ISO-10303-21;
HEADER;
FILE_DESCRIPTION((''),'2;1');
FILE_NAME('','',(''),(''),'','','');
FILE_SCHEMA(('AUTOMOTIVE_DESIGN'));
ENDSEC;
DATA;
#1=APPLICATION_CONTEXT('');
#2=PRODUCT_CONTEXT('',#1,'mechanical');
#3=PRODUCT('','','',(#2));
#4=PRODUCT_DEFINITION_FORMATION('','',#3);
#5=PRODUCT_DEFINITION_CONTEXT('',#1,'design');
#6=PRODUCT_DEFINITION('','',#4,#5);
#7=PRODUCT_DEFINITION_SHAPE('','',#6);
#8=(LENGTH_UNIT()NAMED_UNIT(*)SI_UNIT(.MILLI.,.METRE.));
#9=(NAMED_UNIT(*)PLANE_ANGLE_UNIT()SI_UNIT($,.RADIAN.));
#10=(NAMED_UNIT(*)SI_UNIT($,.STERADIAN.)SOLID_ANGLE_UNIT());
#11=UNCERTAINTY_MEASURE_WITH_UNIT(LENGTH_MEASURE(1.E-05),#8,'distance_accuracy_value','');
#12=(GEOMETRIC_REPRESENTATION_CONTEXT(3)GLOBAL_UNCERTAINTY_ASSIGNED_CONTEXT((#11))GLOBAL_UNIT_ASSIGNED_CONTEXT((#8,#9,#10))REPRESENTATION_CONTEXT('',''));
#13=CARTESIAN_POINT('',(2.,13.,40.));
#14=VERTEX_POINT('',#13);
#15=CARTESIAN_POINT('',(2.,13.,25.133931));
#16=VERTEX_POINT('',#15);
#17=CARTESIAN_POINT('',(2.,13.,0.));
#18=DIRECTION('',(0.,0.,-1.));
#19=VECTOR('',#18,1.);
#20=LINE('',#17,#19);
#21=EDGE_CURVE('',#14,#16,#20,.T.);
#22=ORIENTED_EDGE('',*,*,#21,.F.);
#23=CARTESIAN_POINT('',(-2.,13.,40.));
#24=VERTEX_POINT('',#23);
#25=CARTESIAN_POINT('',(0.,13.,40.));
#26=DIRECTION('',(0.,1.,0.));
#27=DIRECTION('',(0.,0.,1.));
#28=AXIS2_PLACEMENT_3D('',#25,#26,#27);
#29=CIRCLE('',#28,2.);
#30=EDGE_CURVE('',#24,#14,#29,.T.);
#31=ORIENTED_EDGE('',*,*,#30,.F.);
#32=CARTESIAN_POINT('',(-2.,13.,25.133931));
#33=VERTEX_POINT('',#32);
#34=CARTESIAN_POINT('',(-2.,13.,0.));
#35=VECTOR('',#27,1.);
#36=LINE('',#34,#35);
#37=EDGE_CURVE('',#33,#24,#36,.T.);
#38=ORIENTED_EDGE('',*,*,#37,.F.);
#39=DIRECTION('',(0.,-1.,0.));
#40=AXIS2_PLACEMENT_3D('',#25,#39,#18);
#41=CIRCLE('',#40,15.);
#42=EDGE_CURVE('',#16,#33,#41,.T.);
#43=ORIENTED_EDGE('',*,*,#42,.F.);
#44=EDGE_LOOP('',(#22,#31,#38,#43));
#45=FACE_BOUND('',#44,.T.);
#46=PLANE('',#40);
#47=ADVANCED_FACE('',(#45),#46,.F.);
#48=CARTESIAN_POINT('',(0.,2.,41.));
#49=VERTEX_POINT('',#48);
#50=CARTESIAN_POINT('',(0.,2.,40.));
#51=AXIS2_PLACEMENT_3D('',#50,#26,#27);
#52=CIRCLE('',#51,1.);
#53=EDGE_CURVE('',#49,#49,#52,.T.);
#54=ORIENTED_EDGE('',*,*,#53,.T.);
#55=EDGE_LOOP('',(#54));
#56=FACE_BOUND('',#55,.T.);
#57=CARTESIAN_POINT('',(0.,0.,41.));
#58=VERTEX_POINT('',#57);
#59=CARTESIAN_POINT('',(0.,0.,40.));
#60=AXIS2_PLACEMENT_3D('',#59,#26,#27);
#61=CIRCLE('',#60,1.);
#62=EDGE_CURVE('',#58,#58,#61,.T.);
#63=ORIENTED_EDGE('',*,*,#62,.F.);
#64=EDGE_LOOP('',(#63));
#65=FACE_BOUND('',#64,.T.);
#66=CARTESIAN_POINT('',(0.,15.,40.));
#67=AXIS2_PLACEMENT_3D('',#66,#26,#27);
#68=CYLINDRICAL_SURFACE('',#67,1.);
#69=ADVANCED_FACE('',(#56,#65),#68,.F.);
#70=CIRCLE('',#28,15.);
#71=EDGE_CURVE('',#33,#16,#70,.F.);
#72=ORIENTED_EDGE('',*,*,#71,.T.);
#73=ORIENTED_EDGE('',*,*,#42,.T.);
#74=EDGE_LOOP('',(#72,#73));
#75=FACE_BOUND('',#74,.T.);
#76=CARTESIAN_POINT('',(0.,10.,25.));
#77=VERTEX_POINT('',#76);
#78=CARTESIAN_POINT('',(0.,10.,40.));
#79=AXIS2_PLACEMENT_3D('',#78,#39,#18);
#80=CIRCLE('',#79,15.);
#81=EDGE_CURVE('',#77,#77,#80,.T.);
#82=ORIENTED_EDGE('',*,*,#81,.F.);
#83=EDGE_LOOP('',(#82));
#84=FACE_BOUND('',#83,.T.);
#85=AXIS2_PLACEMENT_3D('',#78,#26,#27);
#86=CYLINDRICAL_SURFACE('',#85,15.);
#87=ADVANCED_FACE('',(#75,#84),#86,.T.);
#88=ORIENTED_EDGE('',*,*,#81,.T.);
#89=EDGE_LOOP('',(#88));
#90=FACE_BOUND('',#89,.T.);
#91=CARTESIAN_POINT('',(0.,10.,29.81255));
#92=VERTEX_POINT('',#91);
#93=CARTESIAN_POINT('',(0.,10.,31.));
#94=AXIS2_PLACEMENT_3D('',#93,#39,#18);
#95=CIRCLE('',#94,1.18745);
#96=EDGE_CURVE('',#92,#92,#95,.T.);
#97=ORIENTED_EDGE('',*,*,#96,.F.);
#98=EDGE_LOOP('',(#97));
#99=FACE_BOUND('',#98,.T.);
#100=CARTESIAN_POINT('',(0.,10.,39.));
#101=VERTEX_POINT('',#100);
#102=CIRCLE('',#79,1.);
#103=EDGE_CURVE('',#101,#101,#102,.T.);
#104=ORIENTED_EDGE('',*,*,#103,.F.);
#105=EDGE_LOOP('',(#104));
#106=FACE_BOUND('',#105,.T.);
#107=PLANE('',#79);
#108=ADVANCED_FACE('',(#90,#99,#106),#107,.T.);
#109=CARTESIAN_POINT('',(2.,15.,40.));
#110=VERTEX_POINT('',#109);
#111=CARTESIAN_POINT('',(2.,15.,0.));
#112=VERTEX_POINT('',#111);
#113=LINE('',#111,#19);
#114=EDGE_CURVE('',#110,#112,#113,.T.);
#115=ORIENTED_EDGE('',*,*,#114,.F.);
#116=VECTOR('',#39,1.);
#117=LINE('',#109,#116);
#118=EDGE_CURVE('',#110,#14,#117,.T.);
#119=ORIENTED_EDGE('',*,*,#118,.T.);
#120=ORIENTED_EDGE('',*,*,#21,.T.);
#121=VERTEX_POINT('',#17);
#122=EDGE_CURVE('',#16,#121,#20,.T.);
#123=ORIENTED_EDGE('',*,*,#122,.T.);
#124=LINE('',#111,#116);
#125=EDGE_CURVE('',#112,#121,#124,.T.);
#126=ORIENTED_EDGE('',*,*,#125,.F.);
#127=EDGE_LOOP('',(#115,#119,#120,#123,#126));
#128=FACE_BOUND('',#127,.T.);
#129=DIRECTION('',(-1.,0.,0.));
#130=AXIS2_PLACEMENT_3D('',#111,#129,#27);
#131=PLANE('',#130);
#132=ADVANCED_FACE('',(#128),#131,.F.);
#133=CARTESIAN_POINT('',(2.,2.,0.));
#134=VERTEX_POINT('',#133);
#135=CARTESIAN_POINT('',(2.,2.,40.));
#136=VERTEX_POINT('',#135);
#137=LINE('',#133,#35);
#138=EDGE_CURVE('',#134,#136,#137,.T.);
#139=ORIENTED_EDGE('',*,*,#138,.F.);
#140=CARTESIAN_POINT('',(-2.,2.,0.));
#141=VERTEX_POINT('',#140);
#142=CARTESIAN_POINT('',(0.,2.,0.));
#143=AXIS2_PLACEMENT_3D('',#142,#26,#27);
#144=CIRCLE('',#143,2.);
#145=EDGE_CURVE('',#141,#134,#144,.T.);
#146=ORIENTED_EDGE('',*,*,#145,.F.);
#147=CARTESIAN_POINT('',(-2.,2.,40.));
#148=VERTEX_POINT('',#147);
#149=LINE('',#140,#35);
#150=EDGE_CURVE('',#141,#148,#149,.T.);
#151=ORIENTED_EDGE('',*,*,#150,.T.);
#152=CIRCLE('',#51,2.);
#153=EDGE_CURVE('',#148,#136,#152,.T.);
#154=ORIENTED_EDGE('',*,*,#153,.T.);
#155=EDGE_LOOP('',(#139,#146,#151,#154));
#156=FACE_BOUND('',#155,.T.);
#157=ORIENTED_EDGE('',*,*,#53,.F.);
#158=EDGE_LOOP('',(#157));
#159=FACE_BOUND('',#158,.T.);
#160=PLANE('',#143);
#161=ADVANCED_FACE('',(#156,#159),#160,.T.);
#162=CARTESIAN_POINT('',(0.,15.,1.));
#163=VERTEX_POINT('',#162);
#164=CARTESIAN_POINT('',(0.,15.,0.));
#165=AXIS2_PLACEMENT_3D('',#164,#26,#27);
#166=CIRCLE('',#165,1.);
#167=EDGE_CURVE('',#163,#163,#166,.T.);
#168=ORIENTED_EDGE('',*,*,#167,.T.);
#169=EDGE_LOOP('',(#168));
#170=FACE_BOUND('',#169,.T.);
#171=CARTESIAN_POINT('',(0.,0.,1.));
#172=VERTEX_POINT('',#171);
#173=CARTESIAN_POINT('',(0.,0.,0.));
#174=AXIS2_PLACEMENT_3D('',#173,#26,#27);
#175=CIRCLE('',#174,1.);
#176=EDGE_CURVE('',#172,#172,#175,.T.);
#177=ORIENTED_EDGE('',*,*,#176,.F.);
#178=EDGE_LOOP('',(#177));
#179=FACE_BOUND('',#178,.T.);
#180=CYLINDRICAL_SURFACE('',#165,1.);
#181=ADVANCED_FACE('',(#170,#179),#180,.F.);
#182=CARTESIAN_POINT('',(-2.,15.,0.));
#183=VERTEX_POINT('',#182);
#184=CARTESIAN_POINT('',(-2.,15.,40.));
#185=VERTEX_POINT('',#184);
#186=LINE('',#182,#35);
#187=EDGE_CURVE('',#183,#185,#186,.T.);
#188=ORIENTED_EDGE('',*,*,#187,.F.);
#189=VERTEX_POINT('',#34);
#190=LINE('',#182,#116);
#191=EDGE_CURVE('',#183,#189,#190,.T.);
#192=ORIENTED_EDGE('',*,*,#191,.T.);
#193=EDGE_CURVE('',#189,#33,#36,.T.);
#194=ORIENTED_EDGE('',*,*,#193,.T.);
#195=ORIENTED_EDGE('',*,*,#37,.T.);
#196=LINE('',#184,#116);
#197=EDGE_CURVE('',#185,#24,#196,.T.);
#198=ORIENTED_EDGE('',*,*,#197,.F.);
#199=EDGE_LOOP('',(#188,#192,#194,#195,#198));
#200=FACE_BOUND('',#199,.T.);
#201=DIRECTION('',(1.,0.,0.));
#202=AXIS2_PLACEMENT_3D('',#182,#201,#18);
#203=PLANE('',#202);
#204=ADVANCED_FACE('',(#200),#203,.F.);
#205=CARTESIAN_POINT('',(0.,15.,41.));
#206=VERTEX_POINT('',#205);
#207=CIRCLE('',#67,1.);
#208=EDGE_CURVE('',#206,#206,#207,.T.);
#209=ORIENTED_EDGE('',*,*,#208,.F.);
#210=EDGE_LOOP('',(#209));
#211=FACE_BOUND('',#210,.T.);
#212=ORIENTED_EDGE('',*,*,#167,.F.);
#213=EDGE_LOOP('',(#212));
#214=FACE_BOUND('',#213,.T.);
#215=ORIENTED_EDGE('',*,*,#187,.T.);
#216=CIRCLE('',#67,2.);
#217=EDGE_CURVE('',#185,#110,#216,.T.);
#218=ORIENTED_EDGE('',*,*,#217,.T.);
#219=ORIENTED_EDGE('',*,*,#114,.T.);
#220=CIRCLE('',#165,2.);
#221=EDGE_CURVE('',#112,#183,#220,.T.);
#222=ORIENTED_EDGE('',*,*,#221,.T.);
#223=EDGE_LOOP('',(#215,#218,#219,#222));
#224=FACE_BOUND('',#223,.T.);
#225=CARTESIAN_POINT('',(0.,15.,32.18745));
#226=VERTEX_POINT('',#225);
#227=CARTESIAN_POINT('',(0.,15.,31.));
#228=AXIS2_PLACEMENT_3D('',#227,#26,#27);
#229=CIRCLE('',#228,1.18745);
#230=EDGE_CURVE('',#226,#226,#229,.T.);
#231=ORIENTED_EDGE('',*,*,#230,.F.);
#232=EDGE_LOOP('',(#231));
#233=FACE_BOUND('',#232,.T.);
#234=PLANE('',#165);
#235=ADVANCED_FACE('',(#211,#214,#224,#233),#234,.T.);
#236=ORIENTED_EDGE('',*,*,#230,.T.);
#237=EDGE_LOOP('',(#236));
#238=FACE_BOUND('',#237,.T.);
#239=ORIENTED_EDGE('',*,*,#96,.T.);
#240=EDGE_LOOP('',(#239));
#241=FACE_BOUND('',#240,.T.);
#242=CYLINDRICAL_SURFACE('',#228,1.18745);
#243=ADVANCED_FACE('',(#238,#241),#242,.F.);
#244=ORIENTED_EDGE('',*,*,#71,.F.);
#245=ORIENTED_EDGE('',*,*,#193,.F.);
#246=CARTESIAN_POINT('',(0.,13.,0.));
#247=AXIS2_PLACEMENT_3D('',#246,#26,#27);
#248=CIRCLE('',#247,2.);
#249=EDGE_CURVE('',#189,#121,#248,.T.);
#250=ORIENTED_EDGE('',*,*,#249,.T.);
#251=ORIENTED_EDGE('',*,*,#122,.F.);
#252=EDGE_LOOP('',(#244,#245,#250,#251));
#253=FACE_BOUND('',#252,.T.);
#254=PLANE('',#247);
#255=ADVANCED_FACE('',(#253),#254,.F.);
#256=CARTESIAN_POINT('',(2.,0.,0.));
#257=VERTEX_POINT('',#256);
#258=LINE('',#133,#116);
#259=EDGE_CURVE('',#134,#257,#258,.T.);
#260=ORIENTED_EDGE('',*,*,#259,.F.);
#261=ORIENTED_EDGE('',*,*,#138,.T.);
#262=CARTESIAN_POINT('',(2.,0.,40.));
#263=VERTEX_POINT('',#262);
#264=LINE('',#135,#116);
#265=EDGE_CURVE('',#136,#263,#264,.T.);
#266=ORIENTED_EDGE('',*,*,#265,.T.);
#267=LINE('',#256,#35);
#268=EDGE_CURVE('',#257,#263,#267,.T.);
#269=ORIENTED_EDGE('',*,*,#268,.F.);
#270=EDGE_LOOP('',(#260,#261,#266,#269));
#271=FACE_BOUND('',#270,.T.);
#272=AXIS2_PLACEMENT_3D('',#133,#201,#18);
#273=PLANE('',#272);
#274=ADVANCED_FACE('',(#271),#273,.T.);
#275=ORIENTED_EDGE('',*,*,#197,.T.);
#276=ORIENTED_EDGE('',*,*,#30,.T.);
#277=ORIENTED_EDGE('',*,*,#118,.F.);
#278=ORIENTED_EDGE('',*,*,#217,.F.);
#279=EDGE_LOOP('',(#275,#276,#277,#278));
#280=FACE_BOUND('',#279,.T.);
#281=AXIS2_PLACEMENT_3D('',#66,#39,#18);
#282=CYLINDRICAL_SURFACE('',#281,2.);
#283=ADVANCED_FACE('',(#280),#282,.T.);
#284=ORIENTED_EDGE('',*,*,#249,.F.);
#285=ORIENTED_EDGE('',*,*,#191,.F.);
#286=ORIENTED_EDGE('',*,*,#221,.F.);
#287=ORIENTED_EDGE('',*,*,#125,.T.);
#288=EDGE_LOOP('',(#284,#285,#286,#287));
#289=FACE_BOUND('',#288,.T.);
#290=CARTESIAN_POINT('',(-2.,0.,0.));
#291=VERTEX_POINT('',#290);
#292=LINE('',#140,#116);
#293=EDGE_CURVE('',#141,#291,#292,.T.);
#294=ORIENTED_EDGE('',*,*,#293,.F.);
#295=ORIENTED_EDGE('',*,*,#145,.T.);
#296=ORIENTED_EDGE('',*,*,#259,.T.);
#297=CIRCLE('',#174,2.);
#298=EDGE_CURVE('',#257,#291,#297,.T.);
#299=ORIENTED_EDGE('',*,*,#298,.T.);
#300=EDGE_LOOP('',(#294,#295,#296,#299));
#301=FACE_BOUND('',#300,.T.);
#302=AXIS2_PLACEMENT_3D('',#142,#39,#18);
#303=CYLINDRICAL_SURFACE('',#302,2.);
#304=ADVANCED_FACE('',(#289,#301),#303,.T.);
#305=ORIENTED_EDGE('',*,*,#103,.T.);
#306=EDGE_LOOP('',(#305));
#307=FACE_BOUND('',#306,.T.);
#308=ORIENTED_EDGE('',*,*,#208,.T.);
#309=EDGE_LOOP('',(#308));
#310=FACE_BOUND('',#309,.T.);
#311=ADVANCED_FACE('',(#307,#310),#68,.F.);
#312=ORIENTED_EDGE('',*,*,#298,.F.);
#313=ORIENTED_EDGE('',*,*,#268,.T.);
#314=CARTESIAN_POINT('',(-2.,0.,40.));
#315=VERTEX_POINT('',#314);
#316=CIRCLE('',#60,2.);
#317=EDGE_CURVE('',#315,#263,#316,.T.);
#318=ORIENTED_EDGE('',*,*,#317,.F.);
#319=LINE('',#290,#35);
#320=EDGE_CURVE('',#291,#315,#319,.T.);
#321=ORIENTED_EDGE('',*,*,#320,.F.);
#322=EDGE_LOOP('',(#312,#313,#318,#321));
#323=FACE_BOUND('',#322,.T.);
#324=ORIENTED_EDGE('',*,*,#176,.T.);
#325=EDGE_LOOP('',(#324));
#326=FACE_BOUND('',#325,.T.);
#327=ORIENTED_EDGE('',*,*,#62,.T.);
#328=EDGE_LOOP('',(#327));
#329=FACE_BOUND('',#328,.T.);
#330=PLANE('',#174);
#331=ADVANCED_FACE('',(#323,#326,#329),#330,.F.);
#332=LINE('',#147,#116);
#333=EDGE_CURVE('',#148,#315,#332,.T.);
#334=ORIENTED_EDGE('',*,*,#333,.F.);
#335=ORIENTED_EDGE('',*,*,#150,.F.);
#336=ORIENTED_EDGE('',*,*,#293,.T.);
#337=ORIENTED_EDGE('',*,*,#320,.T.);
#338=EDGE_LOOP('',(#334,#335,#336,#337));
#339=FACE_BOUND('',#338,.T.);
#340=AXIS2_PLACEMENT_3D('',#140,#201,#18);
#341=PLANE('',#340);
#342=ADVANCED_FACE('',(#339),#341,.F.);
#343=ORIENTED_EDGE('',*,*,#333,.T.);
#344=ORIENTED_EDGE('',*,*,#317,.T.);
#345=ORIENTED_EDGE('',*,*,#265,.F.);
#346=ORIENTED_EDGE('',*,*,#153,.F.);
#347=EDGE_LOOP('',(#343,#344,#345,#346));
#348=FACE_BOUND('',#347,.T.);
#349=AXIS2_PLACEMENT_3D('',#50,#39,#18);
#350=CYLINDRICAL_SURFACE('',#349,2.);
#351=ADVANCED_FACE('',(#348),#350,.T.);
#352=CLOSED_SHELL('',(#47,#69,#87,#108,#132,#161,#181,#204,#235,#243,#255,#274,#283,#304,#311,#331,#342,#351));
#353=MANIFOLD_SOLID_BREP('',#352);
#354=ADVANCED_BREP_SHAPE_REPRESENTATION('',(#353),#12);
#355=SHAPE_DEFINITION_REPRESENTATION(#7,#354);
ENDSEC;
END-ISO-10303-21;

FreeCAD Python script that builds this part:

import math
import FreeCAD as App
import Part
import Sketcher
Q = App.Units.Quantity

doc = App.newDocument("Part")
body = doc.addObject("PartDesign::Body", "Body")

sketch1 = body.newObject("Sketcher::SketchObject", "Sketch")
sketch1.AttachmentSupport = (doc.getObject("XZ_Plane"), [""])
sketch1.MapMode = "FlatFace"
sketch1.addGeometry([
    Part.LineSegment(App.Vector(2, 40, 0), App.Vector(2, 0, 0)),
    Part.ArcOfCircle(Part.Circle(App.Vector(0, 0, 0), App.Vector(0, 0, 1), 2), math.radians(180), math.radians(360)),
    Part.LineSegment(App.Vector(-2, 0, 0), App.Vector(-2, 40, 0)),
    Part.ArcOfCircle(Part.Circle(App.Vector(0, 40, 0), App.Vector(0, 0, 1), 2), math.radians(0), math.radians(180)),
], False)
sketch1.addConstraint([
    Sketcher.Constraint("Tangent", 0, 2, 1, 2),
    Sketcher.Constraint("Tangent", 1, 1, 2, 1),
    Sketcher.Constraint("Tangent", 2, 2, 3, 2),
    Sketcher.Constraint("Tangent", 3, 1, 0, 1),
    Sketcher.Constraint("Vertical", 0),
    Sketcher.Constraint("Vertical", 2),
    Sketcher.Constraint("Coincident", 1, 3, -1, 1),
    Sketcher.Constraint("Radius", 1, Q("2 mm")),
    Sketcher.Constraint("DistanceY", 0, 2, 0, 1, Q("40 mm")),
])
pad1 = body.newObject("PartDesign::Pad", "Pad")
pad1.Profile = sketch1
pad1.Length = 2
pad1.Reversed = True

sketch2 = body.newObject("Sketcher::SketchObject", "Sketch001")
sketch2.AttachmentSupport = (doc.getObject("XZ_Plane"), [""])
sketch2.MapMode = "FlatFace"
sketch2.AttachmentOffset = App.Placement(App.Vector(0, 0, -2), App.Rotation())
sketch2.addGeometry(Part.Circle(App.Vector(0, 0, 0), App.Vector(0, 0, 1), 2), False)
sketch2.addConstraint([
    Sketcher.Constraint("Coincident", 0, 3, -1, 1),
    Sketcher.Constraint("Diameter", 0, Q("4 mm")),
])
pad2 = body.newObject("PartDesign::Pad", "Pad001")
pad2.Profile = sketch2
pad2.Length = 12
pad2.Reversed = True

sketch3 = body.newObject("Sketcher::SketchObject", "Sketch002")
sketch3.AttachmentSupport = (doc.getObject("XZ_Plane"), [""])
sketch3.MapMode = "FlatFace"
sketch3.AttachmentOffset = App.Placement(App.Vector(0, 0, -13), App.Rotation())
sketch3.addGeometry([
    Part.LineSegment(App.Vector(2, 40, 0), App.Vector(2, 0, 0)),
    Part.ArcOfCircle(Part.Circle(App.Vector(0, 0, 0), App.Vector(0, 0, 1), 2), math.radians(180), math.radians(360)),
    Part.LineSegment(App.Vector(-2, 0, 0), App.Vector(-2, 40, 0)),
    Part.ArcOfCircle(Part.Circle(App.Vector(0, 40, 0), App.Vector(0, 0, 1), 2), math.radians(0), math.radians(180)),
], False)
sketch3.addConstraint([
    Sketcher.Constraint("Tangent", 0, 2, 1, 2),
    Sketcher.Constraint("Tangent", 1, 1, 2, 1),
    Sketcher.Constraint("Tangent", 2, 2, 3, 2),
    Sketcher.Constraint("Tangent", 3, 1, 0, 1),
    Sketcher.Constraint("Vertical", 0),
    Sketcher.Constraint("Vertical", 2),
    Sketcher.Constraint("Coincident", 1, 3, -1, 1),
    Sketcher.Constraint("Radius", 1, Q("2 mm")),
    Sketcher.Constraint("DistanceY", 0, 2, 0, 1, Q("40 mm")),
])
pad3 = body.newObject("PartDesign::Pad", "Pad002")
pad3.Profile = sketch3
pad3.Length = 2
pad3.Reversed = True

sketch4 = body.newObject("Sketcher::SketchObject", "Sketch003")
sketch4.AttachmentSupport = (doc.getObject("XZ_Plane"), [""])
sketch4.MapMode = "FlatFace"
sketch4.AttachmentOffset = App.Placement(App.Vector(0, 0, -13), App.Rotation())
sketch4.addGeometry(Part.Circle(App.Vector(0, 40, 0), App.Vector(0, 0, 1), 15), False)
sketch4.addConstraint([
    Sketcher.Constraint("PointOnObject", 0, 3, -2),
    Sketcher.Constraint("Diameter", 0, Q("30 mm")),
    Sketcher.Constraint("DistanceY", -1, 1, 0, 3, Q("40 mm")),
])
pad4 = body.newObject("PartDesign::Pad", "Pad003")
pad4.Profile = sketch4
pad4.Length = 3

sketch5 = body.newObject("Sketcher::SketchObject", "Sketch004")
sketch5.AttachmentSupport = (doc.getObject("XZ_Plane"), [""])
sketch5.MapMode = "FlatFace"
sketch5.AttachmentOffset = App.Placement(App.Vector(0, 0, -15), App.Rotation())
sketch5.addGeometry([
    Part.Circle(App.Vector(0, 0, 0), App.Vector(0, 0, 1), 1),
    Part.Circle(App.Vector(0, 40, 0), App.Vector(0, 0, 1), 1),
], False)
sketch5.addConstraint([
    Sketcher.Constraint("Coincident", 0, 3, -1, 1),
    Sketcher.Constraint("Equal", 0, 1),
    Sketcher.Constraint("PointOnObject", 1, 3, -2),
    Sketcher.Constraint("Diameter", 0, Q("2 mm")),
    Sketcher.Constraint("DistanceY", -1, 1, 1, 3, Q("40 mm")),
])
doc.recompute()
hole = body.newObject("PartDesign::Hole", "Hole")
hole.Profile = sketch5
hole.ThreadType = "None"
hole.Diameter = 2
hole.DepthType = "ThroughAll"
hole.Reversed = True

sketch6 = body.newObject("Sketcher::SketchObject", "Sketch005")
sketch6.AttachmentSupport = (doc.getObject("XZ_Plane"), [""])
sketch6.MapMode = "FlatFace"
sketch6.AttachmentOffset = App.Placement(App.Vector(0, 0, -15), App.Rotation())
sketch6.addGeometry(Part.Circle(App.Vector(0, 31, 0), App.Vector(0, 0, 1), 1.18745), False)
sketch6.addConstraint([
    Sketcher.Constraint("PointOnObject", 0, 3, -2),
    Sketcher.Constraint("DistanceY", -1, 1, 0, 3, Q("31 mm")),
    Sketcher.Constraint("Diameter", 0, Q("2.3749 mm")),
])
doc.recompute()
hole2 = body.newObject("PartDesign::Hole", "Hole001")
hole2.Profile = sketch6
hole2.ThreadType = "None"
hole2.Diameter = 2.3749
hole2.DepthType = "Dimension"
hole2.Depth = 7.27
hole2.DrillPoint = "Angled"
hole2.DrillPointAngle = 118
hole2.Reversed = True

doc.recompute()
